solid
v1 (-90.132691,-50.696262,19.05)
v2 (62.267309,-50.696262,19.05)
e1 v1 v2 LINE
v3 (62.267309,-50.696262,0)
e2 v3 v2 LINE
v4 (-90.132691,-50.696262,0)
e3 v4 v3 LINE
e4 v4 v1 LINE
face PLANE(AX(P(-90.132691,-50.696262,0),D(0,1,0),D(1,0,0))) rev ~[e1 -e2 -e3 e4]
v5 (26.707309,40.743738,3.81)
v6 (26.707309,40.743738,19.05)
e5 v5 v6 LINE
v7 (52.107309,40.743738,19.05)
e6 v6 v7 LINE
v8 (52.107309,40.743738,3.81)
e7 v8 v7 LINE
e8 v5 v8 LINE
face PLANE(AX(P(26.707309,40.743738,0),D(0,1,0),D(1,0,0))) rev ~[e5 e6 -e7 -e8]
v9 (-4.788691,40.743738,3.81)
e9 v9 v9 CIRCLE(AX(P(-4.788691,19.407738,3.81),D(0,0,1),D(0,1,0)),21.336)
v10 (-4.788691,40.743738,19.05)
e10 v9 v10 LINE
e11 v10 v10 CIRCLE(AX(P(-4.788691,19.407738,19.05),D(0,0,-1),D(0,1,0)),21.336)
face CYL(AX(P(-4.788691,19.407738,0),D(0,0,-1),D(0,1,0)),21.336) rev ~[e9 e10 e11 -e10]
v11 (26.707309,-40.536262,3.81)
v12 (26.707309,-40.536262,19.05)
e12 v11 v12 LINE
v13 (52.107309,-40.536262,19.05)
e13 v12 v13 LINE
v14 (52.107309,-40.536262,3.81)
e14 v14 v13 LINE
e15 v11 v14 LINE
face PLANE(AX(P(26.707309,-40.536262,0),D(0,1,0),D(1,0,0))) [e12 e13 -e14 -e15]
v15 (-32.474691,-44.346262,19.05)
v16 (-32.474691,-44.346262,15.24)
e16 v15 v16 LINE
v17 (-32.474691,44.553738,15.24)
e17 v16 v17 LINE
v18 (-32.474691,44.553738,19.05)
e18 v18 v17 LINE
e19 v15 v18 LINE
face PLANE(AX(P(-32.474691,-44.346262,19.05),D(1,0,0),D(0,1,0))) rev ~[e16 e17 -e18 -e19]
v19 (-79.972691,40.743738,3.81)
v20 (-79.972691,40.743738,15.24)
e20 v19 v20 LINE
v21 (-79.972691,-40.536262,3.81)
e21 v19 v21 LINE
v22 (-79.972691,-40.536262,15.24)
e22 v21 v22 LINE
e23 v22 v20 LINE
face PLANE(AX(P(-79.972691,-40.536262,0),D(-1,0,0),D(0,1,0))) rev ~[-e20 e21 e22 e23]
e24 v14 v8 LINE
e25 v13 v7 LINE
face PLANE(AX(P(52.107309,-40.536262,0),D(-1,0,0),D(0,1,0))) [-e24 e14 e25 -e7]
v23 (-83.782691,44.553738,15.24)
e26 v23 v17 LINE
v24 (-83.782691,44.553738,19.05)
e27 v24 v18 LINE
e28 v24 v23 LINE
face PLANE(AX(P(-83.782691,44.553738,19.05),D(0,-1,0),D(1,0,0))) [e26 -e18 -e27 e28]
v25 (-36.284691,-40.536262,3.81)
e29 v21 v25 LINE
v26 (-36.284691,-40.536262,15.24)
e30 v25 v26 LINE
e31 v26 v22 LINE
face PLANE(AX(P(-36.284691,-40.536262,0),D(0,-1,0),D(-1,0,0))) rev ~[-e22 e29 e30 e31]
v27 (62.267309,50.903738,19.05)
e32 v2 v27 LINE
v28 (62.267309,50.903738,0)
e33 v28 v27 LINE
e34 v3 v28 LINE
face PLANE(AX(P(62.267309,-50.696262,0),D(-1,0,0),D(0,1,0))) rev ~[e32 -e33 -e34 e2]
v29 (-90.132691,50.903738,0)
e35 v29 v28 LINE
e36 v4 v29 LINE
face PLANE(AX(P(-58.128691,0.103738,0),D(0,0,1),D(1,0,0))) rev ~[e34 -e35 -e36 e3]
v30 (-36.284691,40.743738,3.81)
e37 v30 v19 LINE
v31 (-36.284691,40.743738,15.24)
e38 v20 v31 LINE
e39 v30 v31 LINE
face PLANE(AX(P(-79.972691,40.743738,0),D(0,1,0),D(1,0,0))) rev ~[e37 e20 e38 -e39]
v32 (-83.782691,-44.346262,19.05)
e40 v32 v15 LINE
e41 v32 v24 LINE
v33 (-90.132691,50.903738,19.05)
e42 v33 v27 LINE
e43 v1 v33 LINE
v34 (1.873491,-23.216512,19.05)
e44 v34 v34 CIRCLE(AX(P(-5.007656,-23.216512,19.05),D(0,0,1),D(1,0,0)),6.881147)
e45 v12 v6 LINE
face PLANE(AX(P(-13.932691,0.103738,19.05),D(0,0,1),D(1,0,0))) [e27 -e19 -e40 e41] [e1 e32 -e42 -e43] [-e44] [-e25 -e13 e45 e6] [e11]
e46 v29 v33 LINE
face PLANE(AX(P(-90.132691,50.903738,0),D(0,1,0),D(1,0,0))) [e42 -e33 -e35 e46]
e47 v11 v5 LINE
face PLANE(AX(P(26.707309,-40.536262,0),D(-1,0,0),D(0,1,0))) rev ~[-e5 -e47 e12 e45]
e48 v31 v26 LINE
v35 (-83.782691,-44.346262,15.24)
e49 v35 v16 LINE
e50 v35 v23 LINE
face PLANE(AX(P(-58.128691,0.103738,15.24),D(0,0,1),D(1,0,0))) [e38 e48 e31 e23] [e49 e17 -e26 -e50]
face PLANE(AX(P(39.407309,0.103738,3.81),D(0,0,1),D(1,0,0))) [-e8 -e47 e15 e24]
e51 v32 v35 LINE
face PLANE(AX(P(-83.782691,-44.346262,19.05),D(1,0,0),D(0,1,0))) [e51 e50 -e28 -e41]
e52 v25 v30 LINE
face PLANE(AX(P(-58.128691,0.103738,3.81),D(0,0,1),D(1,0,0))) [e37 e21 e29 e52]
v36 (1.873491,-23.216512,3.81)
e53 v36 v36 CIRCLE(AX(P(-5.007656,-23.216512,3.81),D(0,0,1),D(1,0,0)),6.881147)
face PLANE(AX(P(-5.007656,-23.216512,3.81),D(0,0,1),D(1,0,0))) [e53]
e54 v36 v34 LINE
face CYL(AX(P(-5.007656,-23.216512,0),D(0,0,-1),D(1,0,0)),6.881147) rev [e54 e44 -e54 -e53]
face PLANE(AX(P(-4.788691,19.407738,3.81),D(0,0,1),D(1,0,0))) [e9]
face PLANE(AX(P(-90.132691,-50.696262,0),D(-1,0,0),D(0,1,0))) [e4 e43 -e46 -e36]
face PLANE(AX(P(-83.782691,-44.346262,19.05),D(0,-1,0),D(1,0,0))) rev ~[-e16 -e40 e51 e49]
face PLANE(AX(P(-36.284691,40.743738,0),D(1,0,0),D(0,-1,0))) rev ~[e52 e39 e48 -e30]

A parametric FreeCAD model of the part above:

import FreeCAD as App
import Part
import Sketcher

V = App.Vector
Q = App.Units.Quantity

doc = App.newDocument("Part")
body = doc.addObject("PartDesign::Body", "Body")

# Sketch on XY plane
sketch1 = body.newObject("Sketcher::SketchObject", "Sketch")
sketch1.AttachmentSupport = (doc.getObject("XY_Plane"), [""])
sketch1.MapMode = "FlatFace"
sketch1.addGeometry(Part.LineSegment(V(-90.132691, 50.903738, 0), V(-90.132691, -50.696262, 0)), False)
sketch1.addGeometry(Part.LineSegment(V(-90.132691, -50.696262, 0), V(62.267309, -50.696262, 0)), False)
sketch1.addGeometry(Part.LineSegment(V(62.267309, -50.696262, 0), V(62.267309, 50.903738, 0)), False)
sketch1.addGeometry(Part.LineSegment(V(62.267309, 50.903738, 0), V(-90.132691, 50.903738, 0)), False)
sketch1.addGeometry(Part.LineSegment(V(-79.972691, 40.743738, 0), V(-36.284691, 40.743738, 0)), False)
sketch1.addGeometry(Part.LineSegment(V(-36.284691, 40.743738, 0), V(-36.284691, -40.536262, 0)), False)
sketch1.addGeometry(Part.LineSegment(V(-36.284691, -40.536262, 0), V(-79.972691, -40.536262, 0)), False)
sketch1.addGeometry(Part.LineSegment(V(-79.972691, -40.536262, 0), V(-79.972691, 40.743738, 0)), False)
sketch1.addGeometry(Part.Circle(V(-5.007656, -23.216512, 0), V(0, 0, 1), 6.881147), False)
sketch1.addGeometry(Part.LineSegment(V(52.107309, -40.536262, 0), V(26.707309, -40.536262, 0)), False)
sketch1.addGeometry(Part.LineSegment(V(26.707309, -40.536262, 0), V(26.707309, 40.743738, 0)), False)
sketch1.addGeometry(Part.LineSegment(V(26.707309, 40.743738, 0), V(52.107309, 40.743738, 0)), False)
sketch1.addGeometry(Part.LineSegment(V(52.107309, 40.743738, 0), V(52.107309, -40.536262, 0)), False)
sketch1.addGeometry(Part.Circle(V(-4.788691, 19.407738, 0), V(0, 0, 1), 21.336), False)
sketch1.addConstraint(Sketcher.Constraint("Coincident", 0, 2, 1, 1))
sketch1.addConstraint(Sketcher.Constraint("Coincident", 1, 2, 2, 1))
sketch1.addConstraint(Sketcher.Constraint("Coincident", 2, 2, 3, 1))
sketch1.addConstraint(Sketcher.Constraint("Coincident", 3, 2, 0, 1))
sketch1.addConstraint(Sketcher.Constraint("Coincident", 4, 2, 5, 1))
sketch1.addConstraint(Sketcher.Constraint("Coincident", 5, 2, 6, 1))
sketch1.addConstraint(Sketcher.Constraint("Coincident", 6, 2, 7, 1))
sketch1.addConstraint(Sketcher.Constraint("Coincident", 7, 2, 4, 1))
sketch1.addConstraint(Sketcher.Constraint("Coincident", 9, 2, 10, 1))
sketch1.addConstraint(Sketcher.Constraint("Coincident", 10, 2, 11, 1))
sketch1.addConstraint(Sketcher.Constraint("Coincident", 11, 2, 12, 1))
sketch1.addConstraint(Sketcher.Constraint("Coincident", 12, 2, 9, 1))
sketch1.addConstraint(Sketcher.Constraint("Vertical", 0))
sketch1.addConstraint(Sketcher.Constraint("Horizontal", 1))
sketch1.addConstraint(Sketcher.Constraint("Vertical", 2))
sketch1.addConstraint(Sketcher.Constraint("Horizontal", 3))
sketch1.addConstraint(Sketcher.Constraint("Horizontal", 4))
sketch1.addConstraint(Sketcher.Constraint("Vertical", 5))
sketch1.addConstraint(Sketcher.Constraint("Horizontal", 6))
sketch1.addConstraint(Sketcher.Constraint("Vertical", 7))
sketch1.addConstraint(Sketcher.Constraint("Horizontal", 9))
sketch1.addConstraint(Sketcher.Constraint("Vertical", 10))
sketch1.addConstraint(Sketcher.Constraint("Horizontal", 11))
sketch1.addConstraint(Sketcher.Constraint("Vertical", 12))
sketch1.addConstraint(Sketcher.Constraint("Horizontal", 6, 2, 9, 2))
sketch1.addConstraint(Sketcher.Constraint("Horizontal", 7, 2, 10, 2))
sketch1.addConstraint(Sketcher.Constraint("Diameter", 13, Q("1.68 in")))
sketch1.addConstraint(Sketcher.Constraint("DistanceX", 1, 1, 1, 2, Q("6 in")))
sketch1.addConstraint(Sketcher.Constraint("DistanceX", 9, 2, 9, 1, Q("1 in")))
sketch1.addConstraint(Sketcher.Constraint("DistanceY", 0, 2, 0, 1, Q("4 in")))
sketch1.addConstraint(Sketcher.Constraint("DistanceY", 5, 2, 5, 1, Q("3.2 in")))
sketch1.addConstraint(Sketcher.Constraint("DistanceX", 4, 1, 4, 2, Q("1.72 in")))
sketch1.addConstraint(Sketcher.Constraint("DistanceY", 4, 2, 3, 2, Q("0.4 in")))
sketch1.addConstraint(Sketcher.Constraint("DistanceX", 0, 2, 6, 2, Q("0.4 in")))
sketch1.addConstraint(Sketcher.Constraint("DistanceX", 9, 2, 1, 2, Q("1.4 in")))
sketch1.addConstraint(Sketcher.Constraint("DistanceX", 0, 2, 13, 3, Q("3.36 in")))
sketch1.addConstraint(Sketcher.Constraint("DistanceY", 0, 2, 13, 3, Q("2.76 in")))
sketch1.addConstraint(Sketcher.Constraint("Diameter", 8, Q("13.762294 mm")))
sketch1.addConstraint(Sketcher.Constraint("DistanceX", 13, 3, -1, 1, Q("4.788691 mm")))
sketch1.addConstraint(Sketcher.Constraint("DistanceY", -1, 1, 13, 3, Q("19.407738 mm")))
sketch1.addConstraint(Sketcher.Constraint("DistanceY", 8, 3, 13, 3, Q("42.62425 mm")))
sketch1.addConstraint(Sketcher.Constraint("DistanceX", 8, 3, -1, 1, Q("5.007656 mm")))
pad1 = body.newObject("PartDesign::Pad", "Pad")
pad1.Profile = sketch1
pad1.Length = Q("0.75 in")

# Sketch on XY plane
sketch2 = body.newObject("Sketcher::SketchObject", "Sketch001")
sketch2.AttachmentSupport = (doc.getObject("XY_Plane"), [""])
sketch2.MapMode = "FlatFace"
sketch2.addGeometry(Part.LineSegment(V(-36.284691, 40.743738, 0), V(-79.972691, 40.743738, 0)), False)
sketch2.addGeometry(Part.LineSegment(V(-79.972691, 40.743738, 0), V(-79.972691, -40.536262, 0)), False)
sketch2.addGeometry(Part.LineSegment(V(-79.972691, -40.536262, 0), V(-36.284691, -40.536262, 0)), False)
sketch2.addGeometry(Part.LineSegment(V(-36.284691, -40.536262, 0), V(-36.284691, 40.743738, 0)), False)
sketch2.addGeometry(Part.Circle(V(-4.788691, 19.407738, 0), V(0, 0, 1), 21.336), False)
sketch2.addGeometry(Part.Circle(V(-5.007656, -23.216512, 0), V(0, 0, 1), 6.881147), False)
sketch2.addGeometry(Part.LineSegment(V(26.707309, 40.743738, 0), V(26.707309, -40.536262, 0)), False)
sketch2.addGeometry(Part.LineSegment(V(26.707309, -40.536262, 0), V(52.107309, -40.536262, 0)), False)
sketch2.addGeometry(Part.LineSegment(V(52.107309, -40.536262, 0), V(52.107309, 40.743738, 0)), False)
sketch2.addGeometry(Part.LineSegment(V(52.107309, 40.743738, 0), V(26.707309, 40.743738, 0)), False)
sketch2.addConstraint(Sketcher.Constraint("Coincident", 0, 2, 1, 1))
sketch2.addConstraint(Sketcher.Constraint("Coincident", 1, 2, 2, 1))
sketch2.addConstraint(Sketcher.Constraint("Coincident", 2, 2, 3, 1))
sketch2.addConstraint(Sketcher.Constraint("Coincident", 3, 2, 0, 1))
sketch2.addConstraint(Sketcher.Constraint("Coincident", 6, 2, 7, 1))
sketch2.addConstraint(Sketcher.Constraint("Coincident", 7, 2, 8, 1))
sketch2.addConstraint(Sketcher.Constraint("Coincident", 8, 2, 9, 1))
sketch2.addConstraint(Sketcher.Constraint("Coincident", 9, 2, 6, 1))
sketch2.addConstraint(Sketcher.Constraint("Horizontal", 0))
sketch2.addConstraint(Sketcher.Constraint("Vertical", 1))
sketch2.addConstraint(Sketcher.Constraint("Horizontal", 2))
sketch2.addConstraint(Sketcher.Constraint("Vertical", 3))
sketch2.addConstraint(Sketcher.Constraint("Vertical", 6))
sketch2.addConstraint(Sketcher.Constraint("Horizontal", 7))
sketch2.addConstraint(Sketcher.Constraint("Vertical", 8))
sketch2.addConstraint(Sketcher.Constraint("Horizontal", 9))
sketch2.addConstraint(Sketcher.Constraint("Horizontal", 2, 2, 6, 2))
sketch2.addConstraint(Sketcher.Constraint("Horizontal", 3, 2, 8, 2))
sketch2.addConstraint(Sketcher.Constraint("Diameter", 4, Q("1.68 in")))
sketch2.addConstraint(Sketcher.Constraint("DistanceX", 7, 1, 7, 2, Q("1 in")))
sketch2.addConstraint(Sketcher.Constraint("DistanceY", 1, 2, 1, 1, Q("3.2 in")))
sketch2.addConstraint(Sketcher.Constraint("DistanceX", 0, 2, 0, 1, Q("1.72 in")))
sketch2.addConstraint(Sketcher.Constraint("DistanceX", 1, 2, 6, 2, Q("4.2 in")))
sketch2.addConstraint(Sketcher.Constraint("DistanceX", 0, 2, 4, 3, Q("2.96 in")))
sketch2.addConstraint(Sketcher.Constraint("DistanceY", 4, 3, 0, 2, Q("0.84 in")))
sketch2.addConstraint(Sketcher.Constraint("Diameter", 5, Q("13.762294 mm")))
sketch2.addConstraint(Sketcher.Constraint("DistanceX", 4, 3, -1, 1, Q("4.788691 mm")))
sketch2.addConstraint(Sketcher.Constraint("DistanceY", -1, 1, 4, 3, Q("19.407738 mm")))
sketch2.addConstraint(Sketcher.Constraint("DistanceY", 5, 3, 4, 3, Q("42.62425 mm")))
sketch2.addConstraint(Sketcher.Constraint("DistanceX", 5, 3, -1, 1, Q("5.007656 mm")))
pad2 = body.newObject("PartDesign::Pad", "Pad001")
pad2.Profile = sketch2
pad2.Length = Q("0.15 in")

# Sketch on XY plane
sketch3 = body.newObject("Sketcher::SketchObject", "Sketch002")
sketch3.AttachmentSupport = (doc.getObject("XY_Plane"), [""])
sketch3.MapMode = "FlatFace"
sketch3.AttachmentOffset = App.Placement(V(0, 0, 0.75 * 25.4), App.Rotation())
sketch3.addGeometry(Part.LineSegment(V(-83.782691, 44.553738, 0), V(-83.782691, -44.346262, 0)), False)
sketch3.addGeometry(Part.LineSegment(V(-83.782691, -44.346262, 0), V(-32.474691, -44.346262, 0)), False)
sketch3.addGeometry(Part.LineSegment(V(-32.474691, -44.346262, 0), V(-32.474691, 44.553738, 0)), False)
sketch3.addGeometry(Part.LineSegment(V(-32.474691, 44.553738, 0), V(-83.782691, 44.553738, 0)), False)
sketch3.addConstraint(Sketcher.Constraint("Coincident", 0, 2, 1, 1))
sketch3.addConstraint(Sketcher.Constraint("Coincident", 1, 2, 2, 1))
sketch3.addConstraint(Sketcher.Constraint("Coincident", 2, 2, 3, 1))
sketch3.addConstraint(Sketcher.Constraint("Coincident", 3, 2, 0, 1))
sketch3.addConstraint(Sketcher.Constraint("Vertical", 0))
sketch3.addConstraint(Sketcher.Constraint("Horizontal", 1))
sketch3.addConstraint(Sketcher.Constraint("Vertical", 2))
sketch3.addConstraint(Sketcher.Constraint("Horizontal", 3))
sketch3.addConstraint(Sketcher.Constraint("DistanceY", 0, 2, 0, 1, Q("3.5 in")))
sketch3.addConstraint(Sketcher.Constraint("DistanceX", 1, 1, 1, 2, Q("2.02 in")))
sketch3.addConstraint(Sketcher.Constraint("DistanceX", 0, 2, -1, 1, Q("83.782691 mm")))
sketch3.addConstraint(Sketcher.Constraint("DistanceY", 0, 2, -1, 1, Q("44.346262 mm")))
pocket1 = body.newObject("PartDesign::Pocket", "Pocket")
pocket1.Profile = sketch3
pocket1.Length = Q("0.15 in")

doc.recompute()
